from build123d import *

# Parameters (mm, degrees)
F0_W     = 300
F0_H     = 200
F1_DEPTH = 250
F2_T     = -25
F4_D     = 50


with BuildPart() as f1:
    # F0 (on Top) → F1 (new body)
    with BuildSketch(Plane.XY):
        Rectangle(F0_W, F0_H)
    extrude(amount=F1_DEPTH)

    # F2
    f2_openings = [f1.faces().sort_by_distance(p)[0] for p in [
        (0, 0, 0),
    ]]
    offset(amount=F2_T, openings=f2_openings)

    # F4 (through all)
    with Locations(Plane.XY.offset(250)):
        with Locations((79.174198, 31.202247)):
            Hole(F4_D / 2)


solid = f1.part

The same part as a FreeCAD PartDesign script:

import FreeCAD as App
import Part
import Sketcher


def faces_at(feature, points):
    """Names of the faces that lie closest to the given points."""
    faces = feature.Shape.Faces
    near = lambda p: min(range(len(faces)), key=lambda i: faces[i].distToShape(Part.Vertex(*p))[0])
    return sorted({f"Face{near(p) + 1}" for p in points})


def add_polygon(sketch, points):
    """Adds a closed chain of lines whose ends are joined by coincident constraints."""
    first, n = sketch.GeometryCount, len(points)
    for a, b in zip(points, points[1:] + points[:1]):
        sketch.addGeometry(Part.LineSegment(App.Vector(*a, 0), App.Vector(*b, 0)), False)
    for i in range(n):
        sketch.addConstraint(Sketcher.Constraint("Coincident", first + i, 2, first + (i + 1) % n, 1))

doc = App.newDocument("Part")
body = doc.addObject("PartDesign::Body", "Body")

# Sketch on XY plane
sketch1 = body.newObject("Sketcher::SketchObject", "Sketch")
sketch1.AttachmentSupport = (doc.getObject("XY_Plane"), [""])
sketch1.MapMode = "FlatFace"
add_polygon(sketch1, [(-150, 100), (-150, -100), (150, -100), (150, 100)])  # lines 0-3
sketch1.addConstraint(Sketcher.Constraint("Vertical", 0))
sketch1.addConstraint(Sketcher.Constraint("Horizontal", 1))
sketch1.addConstraint(Sketcher.Constraint("Vertical", 2))
sketch1.addConstraint(Sketcher.Constraint("Horizontal", 3))
sketch1.addConstraint(Sketcher.Constraint("Symmetric", 0, 2, 2, 2, -1, 1))
sketch1.addConstraint(Sketcher.Constraint("DistanceX", 1, 1, 1, 2, 300.0))
sketch1.addConstraint(Sketcher.Constraint("DistanceY", 0, 2, 0, 1, 200.0))
pad1 = body.newObject("PartDesign::Pad", "Pad")
pad1.Profile = sketch1
pad1.Length = 250
doc.recompute()

thickness = body.newObject("PartDesign::Thickness", "Thickness")
thickness.Base = (pad1, faces_at(pad1, [(0, 0, 0)]))
thickness.Value = 25
thickness.Reversed = True
thickness.Join = "Arc"

# Sketch on XY plane
sketch2 = body.newObject("Sketcher::SketchObject", "Sketch001")
sketch2.AttachmentSupport = (doc.getObject("XY_Plane"), [""])
sketch2.MapMode = "FlatFace"
sketch2.AttachmentOffset = App.Placement(App.Vector(0, 0, 250), App.Rotation())
sketch2.addGeometry(Part.Circle(App.Vector(79, 31, 0), App.Vector(0, 0, 1), 25), False)
sketch2.addConstraint(Sketcher.Constraint("Diameter", 0, 50.0))
sketch2.addConstraint(Sketcher.Constraint("DistanceX", -1, 1, 0, 3, 79.174198))
sketch2.addConstraint(Sketcher.Constraint("DistanceY", -1, 1, 0, 3, 31.202247))
doc.recompute()
hole = body.newObject("PartDesign::Hole", "Hole")
hole.Profile = sketch2
hole.ThreadType = "None"
hole.Diameter = 50
hole.DepthType = "ThroughAll"

doc.recompute()
